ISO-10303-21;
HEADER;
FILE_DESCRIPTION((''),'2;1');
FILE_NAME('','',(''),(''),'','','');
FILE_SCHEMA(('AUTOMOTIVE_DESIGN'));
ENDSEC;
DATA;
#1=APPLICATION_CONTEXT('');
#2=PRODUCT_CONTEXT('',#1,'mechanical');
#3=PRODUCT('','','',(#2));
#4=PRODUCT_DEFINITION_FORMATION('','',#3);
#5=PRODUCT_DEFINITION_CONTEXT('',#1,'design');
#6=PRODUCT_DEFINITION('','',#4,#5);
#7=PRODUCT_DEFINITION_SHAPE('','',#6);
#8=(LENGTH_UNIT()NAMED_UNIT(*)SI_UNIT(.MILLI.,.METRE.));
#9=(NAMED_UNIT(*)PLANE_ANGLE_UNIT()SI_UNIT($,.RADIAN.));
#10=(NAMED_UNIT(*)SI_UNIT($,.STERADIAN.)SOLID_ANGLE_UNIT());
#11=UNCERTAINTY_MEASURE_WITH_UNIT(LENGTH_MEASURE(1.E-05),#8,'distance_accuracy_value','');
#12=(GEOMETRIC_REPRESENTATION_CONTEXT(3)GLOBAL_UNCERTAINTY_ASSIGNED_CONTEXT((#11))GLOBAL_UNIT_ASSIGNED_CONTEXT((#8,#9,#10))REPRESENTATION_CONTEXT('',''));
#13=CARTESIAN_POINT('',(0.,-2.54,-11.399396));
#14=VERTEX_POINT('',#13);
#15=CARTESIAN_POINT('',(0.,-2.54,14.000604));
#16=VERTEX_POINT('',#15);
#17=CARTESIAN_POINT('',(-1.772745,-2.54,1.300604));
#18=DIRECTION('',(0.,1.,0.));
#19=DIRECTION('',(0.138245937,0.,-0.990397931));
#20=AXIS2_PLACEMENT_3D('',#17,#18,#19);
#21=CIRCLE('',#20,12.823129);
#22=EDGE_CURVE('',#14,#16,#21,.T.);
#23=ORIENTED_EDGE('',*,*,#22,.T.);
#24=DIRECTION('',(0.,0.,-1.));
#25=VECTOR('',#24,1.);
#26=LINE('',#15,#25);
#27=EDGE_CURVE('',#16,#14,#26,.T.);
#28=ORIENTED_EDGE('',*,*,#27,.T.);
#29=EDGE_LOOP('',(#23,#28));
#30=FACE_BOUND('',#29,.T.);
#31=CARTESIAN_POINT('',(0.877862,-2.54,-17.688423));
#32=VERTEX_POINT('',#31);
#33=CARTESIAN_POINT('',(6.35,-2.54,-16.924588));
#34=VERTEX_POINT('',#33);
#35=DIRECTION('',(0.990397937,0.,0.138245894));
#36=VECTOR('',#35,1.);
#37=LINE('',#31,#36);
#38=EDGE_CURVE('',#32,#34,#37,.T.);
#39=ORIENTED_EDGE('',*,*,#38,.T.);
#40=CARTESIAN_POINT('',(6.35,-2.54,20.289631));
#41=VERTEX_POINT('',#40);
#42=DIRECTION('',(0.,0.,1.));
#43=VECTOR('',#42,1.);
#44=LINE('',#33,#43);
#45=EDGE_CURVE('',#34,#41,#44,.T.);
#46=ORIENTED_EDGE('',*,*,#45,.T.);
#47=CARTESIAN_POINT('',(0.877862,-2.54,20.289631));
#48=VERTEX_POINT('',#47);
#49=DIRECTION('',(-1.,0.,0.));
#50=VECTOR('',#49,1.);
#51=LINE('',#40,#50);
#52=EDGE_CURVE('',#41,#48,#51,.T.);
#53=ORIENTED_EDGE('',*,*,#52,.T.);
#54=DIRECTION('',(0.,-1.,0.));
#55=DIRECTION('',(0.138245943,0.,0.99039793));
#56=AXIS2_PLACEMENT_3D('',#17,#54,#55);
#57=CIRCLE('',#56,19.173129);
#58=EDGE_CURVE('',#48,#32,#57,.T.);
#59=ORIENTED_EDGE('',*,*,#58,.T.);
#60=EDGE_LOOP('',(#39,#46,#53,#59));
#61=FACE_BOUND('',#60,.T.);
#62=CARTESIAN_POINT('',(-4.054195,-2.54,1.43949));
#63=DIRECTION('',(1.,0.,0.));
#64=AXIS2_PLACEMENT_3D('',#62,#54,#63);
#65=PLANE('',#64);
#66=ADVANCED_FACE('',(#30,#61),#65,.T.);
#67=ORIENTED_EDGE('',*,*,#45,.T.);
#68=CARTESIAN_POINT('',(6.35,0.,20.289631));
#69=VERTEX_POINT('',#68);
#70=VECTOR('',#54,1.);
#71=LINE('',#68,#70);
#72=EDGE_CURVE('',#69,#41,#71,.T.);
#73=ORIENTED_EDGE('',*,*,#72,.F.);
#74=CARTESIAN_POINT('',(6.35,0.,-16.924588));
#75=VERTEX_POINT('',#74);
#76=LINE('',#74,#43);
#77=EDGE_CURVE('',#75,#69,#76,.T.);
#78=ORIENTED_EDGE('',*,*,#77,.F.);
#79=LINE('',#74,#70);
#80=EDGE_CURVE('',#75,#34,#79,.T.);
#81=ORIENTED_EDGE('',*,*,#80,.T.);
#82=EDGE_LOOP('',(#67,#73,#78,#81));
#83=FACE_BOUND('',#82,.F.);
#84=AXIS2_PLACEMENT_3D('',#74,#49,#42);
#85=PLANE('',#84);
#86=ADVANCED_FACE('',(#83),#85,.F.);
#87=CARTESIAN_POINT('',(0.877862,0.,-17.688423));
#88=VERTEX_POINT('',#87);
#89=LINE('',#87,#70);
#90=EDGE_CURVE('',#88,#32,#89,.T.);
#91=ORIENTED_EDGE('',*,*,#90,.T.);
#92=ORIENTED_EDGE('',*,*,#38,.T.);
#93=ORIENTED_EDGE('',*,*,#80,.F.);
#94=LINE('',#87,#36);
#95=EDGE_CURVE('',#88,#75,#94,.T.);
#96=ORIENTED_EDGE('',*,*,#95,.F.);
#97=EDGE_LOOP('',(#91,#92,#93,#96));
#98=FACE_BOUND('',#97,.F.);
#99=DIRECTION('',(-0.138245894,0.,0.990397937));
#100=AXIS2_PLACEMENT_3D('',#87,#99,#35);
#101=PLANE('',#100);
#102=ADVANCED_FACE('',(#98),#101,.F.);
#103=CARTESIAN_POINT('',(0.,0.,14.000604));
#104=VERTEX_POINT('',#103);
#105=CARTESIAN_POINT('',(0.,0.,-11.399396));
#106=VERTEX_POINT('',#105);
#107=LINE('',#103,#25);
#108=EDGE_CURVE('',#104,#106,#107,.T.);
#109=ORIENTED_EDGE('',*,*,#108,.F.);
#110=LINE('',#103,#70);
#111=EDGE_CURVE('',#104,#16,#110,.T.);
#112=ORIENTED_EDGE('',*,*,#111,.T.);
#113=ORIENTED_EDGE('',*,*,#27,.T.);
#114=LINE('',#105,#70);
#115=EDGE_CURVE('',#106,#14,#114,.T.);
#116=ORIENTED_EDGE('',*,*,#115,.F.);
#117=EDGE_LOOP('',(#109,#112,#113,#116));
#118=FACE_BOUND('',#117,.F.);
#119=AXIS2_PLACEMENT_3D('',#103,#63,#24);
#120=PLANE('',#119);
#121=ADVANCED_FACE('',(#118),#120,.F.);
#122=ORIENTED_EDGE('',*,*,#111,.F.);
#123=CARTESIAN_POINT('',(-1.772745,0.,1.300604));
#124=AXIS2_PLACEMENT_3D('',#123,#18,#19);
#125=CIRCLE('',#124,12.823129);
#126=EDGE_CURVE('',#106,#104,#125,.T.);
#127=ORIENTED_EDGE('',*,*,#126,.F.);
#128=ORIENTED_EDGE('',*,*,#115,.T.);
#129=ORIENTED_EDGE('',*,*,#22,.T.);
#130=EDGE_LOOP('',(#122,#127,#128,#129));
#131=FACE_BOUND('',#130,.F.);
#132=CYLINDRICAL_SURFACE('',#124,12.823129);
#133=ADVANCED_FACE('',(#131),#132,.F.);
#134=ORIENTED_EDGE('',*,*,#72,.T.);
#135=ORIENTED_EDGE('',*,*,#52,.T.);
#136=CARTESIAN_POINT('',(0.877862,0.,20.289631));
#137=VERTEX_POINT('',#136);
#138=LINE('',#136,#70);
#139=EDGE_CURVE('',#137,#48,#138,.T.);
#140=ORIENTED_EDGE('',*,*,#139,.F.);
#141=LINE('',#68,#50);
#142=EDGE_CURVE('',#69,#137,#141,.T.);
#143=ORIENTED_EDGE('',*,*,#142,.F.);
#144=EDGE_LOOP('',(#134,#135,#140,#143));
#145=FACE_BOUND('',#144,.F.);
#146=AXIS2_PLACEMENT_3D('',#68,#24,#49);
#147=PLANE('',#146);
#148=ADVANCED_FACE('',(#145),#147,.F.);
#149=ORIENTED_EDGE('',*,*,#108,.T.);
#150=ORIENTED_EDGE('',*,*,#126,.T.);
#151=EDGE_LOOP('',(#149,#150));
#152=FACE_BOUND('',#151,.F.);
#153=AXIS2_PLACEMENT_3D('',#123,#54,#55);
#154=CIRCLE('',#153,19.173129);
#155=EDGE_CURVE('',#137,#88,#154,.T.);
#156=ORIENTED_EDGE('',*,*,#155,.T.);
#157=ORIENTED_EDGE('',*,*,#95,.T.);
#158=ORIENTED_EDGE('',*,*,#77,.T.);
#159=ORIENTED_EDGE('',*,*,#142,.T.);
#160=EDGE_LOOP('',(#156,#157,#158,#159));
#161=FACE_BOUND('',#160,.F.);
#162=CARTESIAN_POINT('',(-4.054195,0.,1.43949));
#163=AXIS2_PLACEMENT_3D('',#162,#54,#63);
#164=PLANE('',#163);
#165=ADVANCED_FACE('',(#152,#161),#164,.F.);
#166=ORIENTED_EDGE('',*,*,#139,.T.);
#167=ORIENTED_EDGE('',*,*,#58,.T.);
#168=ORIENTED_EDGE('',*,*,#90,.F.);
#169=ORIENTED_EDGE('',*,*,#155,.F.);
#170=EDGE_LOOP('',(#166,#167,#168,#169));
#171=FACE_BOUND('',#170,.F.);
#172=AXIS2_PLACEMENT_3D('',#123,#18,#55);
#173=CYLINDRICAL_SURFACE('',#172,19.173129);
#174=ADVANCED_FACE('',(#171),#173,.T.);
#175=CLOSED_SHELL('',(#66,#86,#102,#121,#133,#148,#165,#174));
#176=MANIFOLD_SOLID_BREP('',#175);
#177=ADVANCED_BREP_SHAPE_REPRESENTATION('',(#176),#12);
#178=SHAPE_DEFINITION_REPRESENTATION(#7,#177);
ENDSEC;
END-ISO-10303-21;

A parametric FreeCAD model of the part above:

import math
import FreeCAD as App
import Part
import Sketcher

V = App.Vector
Q = App.Units.Quantity

doc = App.newDocument("Part")
params = doc.addObject("Spreadsheet::Sheet", "Params")
for row, (alias, value) in enumerate([
    ("sketch1_height", "1 in"),
    ("pad1_length", "0.1 in"),
], start=1):
    params.set(f"A{row}", alias)
    params.set(f"B{row}", "=" + value)
    params.setAlias(f"B{row}", alias)

body = doc.addObject("PartDesign::Body", "Body")

# Sketch on XZ plane
sketch1 = body.newObject("Sketcher::SketchObject", "Sketch")
sketch1.AttachmentSupport = (doc.getObject("XZ_Plane"), [""])
sketch1.MapMode = "FlatFace"
sketch1.addGeometry(Part.LineSegment(V(6, 20, 0), V(1, 20, 0)), False)
sketch1.addGeometry(Part.ArcOfCircle(Part.Circle(V(-2, 1, 0), V(0, 0, 1), 19), math.radians(82), math.radians(278)), False)
sketch1.addGeometry(Part.LineSegment(V(1, -18, 0), V(6, -17, 0)), False)
sketch1.addGeometry(Part.LineSegment(V(6, -17, 0), V(6, 20, 0)), False)
sketch1.addGeometry(Part.LineSegment(V(0, 14, 0), V(0, -11, 0)), False)
sketch1.addGeometry(Part.ArcOfCircle(Part.Circle(V(-2, 1, 0), V(0, 0, 1), 13), math.radians(82), math.radians(278)), False)
sketch1.addConstraint(Sketcher.Constraint("Coincident", 0, 2, 1, 1))
sketch1.addConstraint(Sketcher.Constraint("Tangent", 1, 2, 2, 1))
sketch1.addConstraint(Sketcher.Constraint("Coincident", 2, 2, 3, 1))
sketch1.addConstraint(Sketcher.Constraint("Coincident", 3, 2, 0, 1))
sketch1.addConstraint(Sketcher.Constraint("Coincident", 4, 1, 5, 1))
sketch1.addConstraint(Sketcher.Constraint("Coincident", 5, 2, 4, 2))
sketch1.addConstraint(Sketcher.Constraint("Horizontal", 0))
sketch1.addConstraint(Sketcher.Constraint("Vertical", 3))
sketch1.addConstraint(Sketcher.Constraint("Vertical", 4))
sketch1.addConstraint(Sketcher.Constraint("Coincident", 5, 3, 1, 3))
sketch1.addConstraint(Sketcher.Constraint("PointOnObject", 4, 1, -2))
sketch1.addConstraint(Sketcher.Constraint("Vertical", 0, 2, 1, 2))
sketch1.addConstraint(Sketcher.Constraint("DistanceY", 4, 2, 4, 1, Q("1 in")))
sketch1.addConstraint(Sketcher.Constraint("DistanceX", -1, 1, 2, 2, Q("0.25 in")))
sketch1.addConstraint(Sketcher.Constraint("Radius", 1, 19.173129))
sketch1.addConstraint(Sketcher.Constraint("Radius", 5, 12.823129))
sketch1.addConstraint(Sketcher.Constraint("DistanceY", 3, 1, 3, 2, 37.214219))
sketch1.addConstraint(Sketcher.Constraint("DistanceY", -1, 1, 0, 2, 20.289631))
sketch1.setExpression("Constraints[12]", "Params.sketch1_height")
pad1 = body.newObject("PartDesign::Pad", "Pad")
pad1.Profile = sketch1
pad1.setExpression("Length", "Params.pad1_length")

doc.recompute()
